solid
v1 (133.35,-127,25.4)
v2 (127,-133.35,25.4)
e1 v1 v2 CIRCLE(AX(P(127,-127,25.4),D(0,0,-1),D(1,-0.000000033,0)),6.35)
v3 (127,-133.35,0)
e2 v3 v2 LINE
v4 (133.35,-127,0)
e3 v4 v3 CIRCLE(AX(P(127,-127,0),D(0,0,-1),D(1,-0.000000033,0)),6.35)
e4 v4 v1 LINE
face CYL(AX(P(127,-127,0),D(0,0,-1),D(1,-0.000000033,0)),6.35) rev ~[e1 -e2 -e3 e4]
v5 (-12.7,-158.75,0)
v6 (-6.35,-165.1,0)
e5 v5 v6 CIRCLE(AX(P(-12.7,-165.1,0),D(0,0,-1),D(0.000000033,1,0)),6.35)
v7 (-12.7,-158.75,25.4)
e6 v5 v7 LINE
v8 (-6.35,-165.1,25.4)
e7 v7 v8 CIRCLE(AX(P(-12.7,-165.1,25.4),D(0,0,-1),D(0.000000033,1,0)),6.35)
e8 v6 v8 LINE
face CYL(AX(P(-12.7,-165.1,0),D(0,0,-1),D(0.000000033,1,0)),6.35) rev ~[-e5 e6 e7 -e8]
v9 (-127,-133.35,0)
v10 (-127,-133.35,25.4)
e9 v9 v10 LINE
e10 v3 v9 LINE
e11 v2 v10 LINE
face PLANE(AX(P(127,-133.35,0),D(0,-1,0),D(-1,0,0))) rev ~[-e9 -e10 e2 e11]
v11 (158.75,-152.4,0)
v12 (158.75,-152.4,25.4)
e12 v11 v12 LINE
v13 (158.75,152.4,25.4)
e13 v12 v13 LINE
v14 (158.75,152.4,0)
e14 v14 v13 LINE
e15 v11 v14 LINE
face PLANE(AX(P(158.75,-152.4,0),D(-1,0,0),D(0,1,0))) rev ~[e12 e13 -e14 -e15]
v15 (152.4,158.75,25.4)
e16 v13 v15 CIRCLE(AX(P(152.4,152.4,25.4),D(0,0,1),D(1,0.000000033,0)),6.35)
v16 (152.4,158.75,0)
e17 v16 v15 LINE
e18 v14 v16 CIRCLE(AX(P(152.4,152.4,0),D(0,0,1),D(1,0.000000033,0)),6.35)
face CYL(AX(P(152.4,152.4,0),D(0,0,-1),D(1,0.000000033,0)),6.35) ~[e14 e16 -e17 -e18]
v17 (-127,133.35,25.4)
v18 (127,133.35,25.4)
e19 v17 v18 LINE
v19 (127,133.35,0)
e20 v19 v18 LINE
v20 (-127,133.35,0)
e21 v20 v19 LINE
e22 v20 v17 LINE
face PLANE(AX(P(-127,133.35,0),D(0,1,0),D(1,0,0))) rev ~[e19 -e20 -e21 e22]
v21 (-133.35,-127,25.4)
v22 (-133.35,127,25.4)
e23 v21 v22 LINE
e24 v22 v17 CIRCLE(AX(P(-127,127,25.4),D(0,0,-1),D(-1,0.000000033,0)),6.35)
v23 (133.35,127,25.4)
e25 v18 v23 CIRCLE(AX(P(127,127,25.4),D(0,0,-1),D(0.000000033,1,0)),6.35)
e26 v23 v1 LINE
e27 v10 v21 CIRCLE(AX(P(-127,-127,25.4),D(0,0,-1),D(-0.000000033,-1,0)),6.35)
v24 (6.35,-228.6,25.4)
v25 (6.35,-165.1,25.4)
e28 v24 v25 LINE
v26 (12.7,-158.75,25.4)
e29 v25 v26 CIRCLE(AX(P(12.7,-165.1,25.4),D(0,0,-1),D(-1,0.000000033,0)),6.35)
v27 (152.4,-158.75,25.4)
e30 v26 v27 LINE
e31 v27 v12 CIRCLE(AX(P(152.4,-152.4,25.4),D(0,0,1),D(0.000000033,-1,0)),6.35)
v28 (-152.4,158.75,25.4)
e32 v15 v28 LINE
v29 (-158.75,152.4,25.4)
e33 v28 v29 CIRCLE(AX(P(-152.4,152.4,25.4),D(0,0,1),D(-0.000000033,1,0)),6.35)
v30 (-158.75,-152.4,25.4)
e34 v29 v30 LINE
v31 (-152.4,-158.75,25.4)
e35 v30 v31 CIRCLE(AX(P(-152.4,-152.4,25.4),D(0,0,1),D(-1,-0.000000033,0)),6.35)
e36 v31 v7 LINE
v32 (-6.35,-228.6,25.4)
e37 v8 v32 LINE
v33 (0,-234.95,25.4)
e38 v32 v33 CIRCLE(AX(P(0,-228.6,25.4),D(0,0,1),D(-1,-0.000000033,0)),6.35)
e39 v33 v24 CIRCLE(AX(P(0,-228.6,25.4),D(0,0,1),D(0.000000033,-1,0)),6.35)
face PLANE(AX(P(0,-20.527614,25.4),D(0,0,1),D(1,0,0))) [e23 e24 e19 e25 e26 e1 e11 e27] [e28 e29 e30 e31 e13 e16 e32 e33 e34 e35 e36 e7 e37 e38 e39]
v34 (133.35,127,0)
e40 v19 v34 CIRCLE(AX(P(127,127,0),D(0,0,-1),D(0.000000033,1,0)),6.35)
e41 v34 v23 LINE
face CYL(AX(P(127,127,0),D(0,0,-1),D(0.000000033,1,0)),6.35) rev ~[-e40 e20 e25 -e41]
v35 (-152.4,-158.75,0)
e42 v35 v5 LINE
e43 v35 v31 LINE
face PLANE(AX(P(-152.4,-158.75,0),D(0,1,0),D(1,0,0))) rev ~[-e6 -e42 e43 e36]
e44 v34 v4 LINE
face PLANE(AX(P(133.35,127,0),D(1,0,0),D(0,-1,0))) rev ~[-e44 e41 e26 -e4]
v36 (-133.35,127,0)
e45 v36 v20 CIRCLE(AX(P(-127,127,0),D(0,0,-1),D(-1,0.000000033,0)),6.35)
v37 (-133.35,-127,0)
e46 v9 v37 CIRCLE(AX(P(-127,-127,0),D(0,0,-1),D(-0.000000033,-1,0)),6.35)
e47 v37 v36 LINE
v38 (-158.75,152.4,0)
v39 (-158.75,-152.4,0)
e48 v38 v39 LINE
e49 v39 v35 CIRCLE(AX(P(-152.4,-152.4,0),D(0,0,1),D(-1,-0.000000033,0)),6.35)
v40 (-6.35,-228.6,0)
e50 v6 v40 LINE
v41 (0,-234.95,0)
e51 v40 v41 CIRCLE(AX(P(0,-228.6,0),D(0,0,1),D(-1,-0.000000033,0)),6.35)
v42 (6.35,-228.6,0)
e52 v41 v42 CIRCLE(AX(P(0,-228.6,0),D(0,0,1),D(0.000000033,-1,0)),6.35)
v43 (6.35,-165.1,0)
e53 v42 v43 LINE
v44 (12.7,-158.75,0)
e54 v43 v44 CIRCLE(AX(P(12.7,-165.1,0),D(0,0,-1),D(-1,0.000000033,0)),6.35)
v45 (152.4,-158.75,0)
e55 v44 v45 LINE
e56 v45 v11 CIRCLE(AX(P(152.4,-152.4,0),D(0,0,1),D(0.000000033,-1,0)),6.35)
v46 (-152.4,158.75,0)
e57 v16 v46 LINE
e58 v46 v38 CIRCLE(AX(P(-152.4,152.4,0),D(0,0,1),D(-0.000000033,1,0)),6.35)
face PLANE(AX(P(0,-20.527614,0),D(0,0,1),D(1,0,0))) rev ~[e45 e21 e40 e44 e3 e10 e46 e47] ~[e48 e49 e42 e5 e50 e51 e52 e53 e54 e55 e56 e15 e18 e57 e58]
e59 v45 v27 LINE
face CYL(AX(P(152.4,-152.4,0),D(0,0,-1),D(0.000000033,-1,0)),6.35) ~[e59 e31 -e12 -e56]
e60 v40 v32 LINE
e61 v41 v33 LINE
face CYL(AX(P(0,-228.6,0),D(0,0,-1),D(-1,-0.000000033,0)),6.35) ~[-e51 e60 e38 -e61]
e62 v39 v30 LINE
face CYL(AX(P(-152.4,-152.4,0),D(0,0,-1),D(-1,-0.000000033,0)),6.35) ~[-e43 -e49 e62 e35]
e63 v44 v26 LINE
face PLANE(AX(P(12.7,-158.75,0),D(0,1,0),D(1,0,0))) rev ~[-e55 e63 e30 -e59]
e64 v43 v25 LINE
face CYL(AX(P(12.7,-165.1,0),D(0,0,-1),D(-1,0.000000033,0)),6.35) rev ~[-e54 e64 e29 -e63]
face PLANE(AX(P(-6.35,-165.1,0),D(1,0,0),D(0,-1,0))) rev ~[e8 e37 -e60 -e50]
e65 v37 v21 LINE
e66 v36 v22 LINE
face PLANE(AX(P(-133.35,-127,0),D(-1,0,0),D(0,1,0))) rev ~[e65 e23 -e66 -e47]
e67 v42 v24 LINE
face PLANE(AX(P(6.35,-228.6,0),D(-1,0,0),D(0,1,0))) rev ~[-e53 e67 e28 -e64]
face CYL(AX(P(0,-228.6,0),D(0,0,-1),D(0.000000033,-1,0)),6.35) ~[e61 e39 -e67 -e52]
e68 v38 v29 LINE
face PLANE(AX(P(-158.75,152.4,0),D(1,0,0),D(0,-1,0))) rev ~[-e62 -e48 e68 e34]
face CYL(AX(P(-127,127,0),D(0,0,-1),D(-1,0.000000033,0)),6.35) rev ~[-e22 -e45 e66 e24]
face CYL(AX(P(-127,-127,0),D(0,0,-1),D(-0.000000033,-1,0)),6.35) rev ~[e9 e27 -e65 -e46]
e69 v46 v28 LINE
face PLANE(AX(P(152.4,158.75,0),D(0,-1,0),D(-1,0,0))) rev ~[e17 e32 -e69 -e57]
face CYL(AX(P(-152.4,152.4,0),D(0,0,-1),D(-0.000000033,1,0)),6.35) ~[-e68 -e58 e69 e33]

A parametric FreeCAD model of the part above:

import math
import FreeCAD as App
import Part
import Sketcher

V = App.Vector
Q = App.Units.Quantity

doc = App.newDocument("Part")
body = doc.addObject("PartDesign::Body", "Body")

# Sketch on XY plane
sketch1 = doc.addObject("Sketcher::SketchObject", "Sketch")
body.addObject(sketch1)
sketch1.AttachmentSupport = (doc.XY_Plane, [""])
sketch1.MapMode = "FlatFace"
sketch1.addGeometry([
    Part.LineSegment(V(13, -159, 0), V(152, -159, 0)),  # 0
    Part.ArcOfCircle(Part.Circle(V(152, -152, 0), V(0, 0, 1), 6), math.radians(-90), math.radians(0)),  # 1
    Part.LineSegment(V(159, -152, 0), V(159, 152, 0)),  # 2
    Part.ArcOfCircle(Part.Circle(V(152, 152, 0), V(0, 0, 1), 6), math.radians(0), math.radians(90)),  # 3
    Part.LineSegment(V(152, 159, 0), V(-152, 159, 0)),  # 4
    Part.ArcOfCircle(Part.Circle(V(-152, 152, 0), V(0, 0, 1), 6), math.radians(90), math.radians(180)),  # 5
    Part.LineSegment(V(-159, 152, 0), V(-159, -152, 0)),  # 6
    Part.ArcOfCircle(Part.Circle(V(-152, -152, 0), V(0, 0, 1), 6), math.radians(-180), math.radians(-90)),  # 7
    Part.LineSegment(V(-152, -159, 0), V(-13, -159, 0)),  # 8
    Part.ArcOfCircle(Part.Circle(V(-13, -165, 0), V(0, 0, 1), 6), math.radians(0), math.radians(90)),  # 9
    Part.LineSegment(V(-6, -165, 0), V(-6, -229, 0)),  # 10
    Part.ArcOfCircle(Part.Circle(V(0, -229, 0), V(0, 0, 1), 6), math.radians(-180), math.radians(-90)),  # 11
    Part.ArcOfCircle(Part.Circle(V(0, -229, 0), V(0, 0, 1), 6), math.radians(-90), math.radians(0)),  # 12
    Part.LineSegment(V(6, -229, 0), V(6, -165, 0)),  # 13
    Part.ArcOfCircle(Part.Circle(V(13, -165, 0), V(0, 0, 1), 6), math.radians(90), math.radians(180)),  # 14
    Part.LineSegment(V(133, 127, 0), V(133, -127, 0)),  # 15
    Part.ArcOfCircle(Part.Circle(V(127, -127, 0), V(0, 0, 1), 6), math.radians(-90), math.radians(0)),  # 16
    Part.LineSegment(V(127, -133, 0), V(-127, -133, 0)),  # 17
    Part.ArcOfCircle(Part.Circle(V(-127, -127, 0), V(0, 0, 1), 6), math.radians(-180), math.radians(-90)),  # 18
    Part.LineSegment(V(-133, -127, 0), V(-133, 127, 0)),  # 19
    Part.ArcOfCircle(Part.Circle(V(-127, 127, 0), V(0, 0, 1), 6), math.radians(90), math.radians(180)),  # 20
    Part.LineSegment(V(-127, 133, 0), V(127, 133, 0)),  # 21
    Part.ArcOfCircle(Part.Circle(V(127, 127, 0), V(0, 0, 1), 6), math.radians(0), math.radians(90)),  # 22
], False)
sketch1.addConstraint([
    Sketcher.Constraint("Tangent", 0, 2, 1, 1),
    Sketcher.Constraint("Tangent", 1, 2, 2, 1),
    Sketcher.Constraint("Tangent", 2, 2, 3, 1),
    Sketcher.Constraint("Tangent", 3, 2, 4, 1),
    Sketcher.Constraint("Tangent", 4, 2, 5, 1),
    Sketcher.Constraint("Tangent", 5, 2, 6, 1),
    Sketcher.Constraint("Tangent", 6, 2, 7, 1),
    Sketcher.Constraint("Tangent", 7, 2, 8, 1),
    Sketcher.Constraint("Tangent", 8, 2, 9, 2),
    Sketcher.Constraint("Tangent", 9, 1, 10, 1),
    Sketcher.Constraint("Tangent", 10, 2, 11, 1),
    Sketcher.Constraint("Tangent", 11, 2, 12, 1),
    Sketcher.Constraint("Tangent", 12, 2, 13, 1),
    Sketcher.Constraint("Tangent", 13, 2, 14, 2),
    Sketcher.Constraint("Tangent", 14, 1, 0, 1),
    Sketcher.Constraint("Tangent", 15, 2, 16, 2),
    Sketcher.Constraint("Tangent", 16, 1, 17, 1),
    Sketcher.Constraint("Tangent", 17, 2, 18, 2),
    Sketcher.Constraint("Tangent", 18, 1, 19, 1),
    Sketcher.Constraint("Tangent", 19, 2, 20, 2),
    Sketcher.Constraint("Tangent", 20, 1, 21, 1),
    Sketcher.Constraint("Tangent", 21, 2, 22, 2),
    Sketcher.Constraint("Tangent", 22, 1, 15, 1),
    Sketcher.Constraint("Horizontal", 0),
    Sketcher.Constraint("Vertical", 2),
    Sketcher.Constraint("Horizontal", 4),
    Sketcher.Constraint("Vertical", 6),
    Sketcher.Constraint("Horizontal", 8),
    Sketcher.Constraint("Vertical", 10),
    Sketcher.Constraint("Vertical", 13),
    Sketcher.Constraint("Vertical", 15),
    Sketcher.Constraint("Horizontal", 17),
    Sketcher.Constraint("Vertical", 19),
    Sketcher.Constraint("Horizontal", 21),
    Sketcher.Constraint("Equal", 1, 3),
    Sketcher.Constraint("Equal", 3, 5),
    Sketcher.Constraint("Equal", 5, 7),
    Sketcher.Constraint("Equal", 7, 9),
    Sketcher.Constraint("Equal", 9, 11),
    Sketcher.Constraint("Equal", 11, 12),
    Sketcher.Constraint("Equal", 12, 14),
    Sketcher.Constraint("Equal", 14, 16),
    Sketcher.Constraint("Equal", 16, 18),
    Sketcher.Constraint("Equal", 18, 20),
    Sketcher.Constraint("Equal", 20, 22),
    Sketcher.Constraint("Symmetric", 1, 3, 5, 3, -1, 1),
    Sketcher.Constraint("Symmetric", 16, 3, 20, 3, -1, 1),
    Sketcher.Constraint("Symmetric", 9, 3, 14, 3, -2),
    Sketcher.Constraint("PointOnObject", 11, 2, -2),
    Sketcher.Constraint("Equal", 4, 2),
    Sketcher.Constraint("Equal", 21, 15),
    Sketcher.Constraint("DistanceX", 4, 2, 4, 1, Q("12 in")),
    Sketcher.Constraint("DistanceX", 17, 2, 17, 1, Q("10 in")),
    Sketcher.Constraint("Radius", 1, Q("0.25 in")),
    Sketcher.Constraint("DistanceY", 10, 2, 10, 1, Q("2.5 in")),
])
pad1 = doc.addObject("PartDesign::Pad", "Pad")
body.addObject(pad1)
pad1.Profile = sketch1
pad1.Length = Q("1 in")

doc.recompute()
